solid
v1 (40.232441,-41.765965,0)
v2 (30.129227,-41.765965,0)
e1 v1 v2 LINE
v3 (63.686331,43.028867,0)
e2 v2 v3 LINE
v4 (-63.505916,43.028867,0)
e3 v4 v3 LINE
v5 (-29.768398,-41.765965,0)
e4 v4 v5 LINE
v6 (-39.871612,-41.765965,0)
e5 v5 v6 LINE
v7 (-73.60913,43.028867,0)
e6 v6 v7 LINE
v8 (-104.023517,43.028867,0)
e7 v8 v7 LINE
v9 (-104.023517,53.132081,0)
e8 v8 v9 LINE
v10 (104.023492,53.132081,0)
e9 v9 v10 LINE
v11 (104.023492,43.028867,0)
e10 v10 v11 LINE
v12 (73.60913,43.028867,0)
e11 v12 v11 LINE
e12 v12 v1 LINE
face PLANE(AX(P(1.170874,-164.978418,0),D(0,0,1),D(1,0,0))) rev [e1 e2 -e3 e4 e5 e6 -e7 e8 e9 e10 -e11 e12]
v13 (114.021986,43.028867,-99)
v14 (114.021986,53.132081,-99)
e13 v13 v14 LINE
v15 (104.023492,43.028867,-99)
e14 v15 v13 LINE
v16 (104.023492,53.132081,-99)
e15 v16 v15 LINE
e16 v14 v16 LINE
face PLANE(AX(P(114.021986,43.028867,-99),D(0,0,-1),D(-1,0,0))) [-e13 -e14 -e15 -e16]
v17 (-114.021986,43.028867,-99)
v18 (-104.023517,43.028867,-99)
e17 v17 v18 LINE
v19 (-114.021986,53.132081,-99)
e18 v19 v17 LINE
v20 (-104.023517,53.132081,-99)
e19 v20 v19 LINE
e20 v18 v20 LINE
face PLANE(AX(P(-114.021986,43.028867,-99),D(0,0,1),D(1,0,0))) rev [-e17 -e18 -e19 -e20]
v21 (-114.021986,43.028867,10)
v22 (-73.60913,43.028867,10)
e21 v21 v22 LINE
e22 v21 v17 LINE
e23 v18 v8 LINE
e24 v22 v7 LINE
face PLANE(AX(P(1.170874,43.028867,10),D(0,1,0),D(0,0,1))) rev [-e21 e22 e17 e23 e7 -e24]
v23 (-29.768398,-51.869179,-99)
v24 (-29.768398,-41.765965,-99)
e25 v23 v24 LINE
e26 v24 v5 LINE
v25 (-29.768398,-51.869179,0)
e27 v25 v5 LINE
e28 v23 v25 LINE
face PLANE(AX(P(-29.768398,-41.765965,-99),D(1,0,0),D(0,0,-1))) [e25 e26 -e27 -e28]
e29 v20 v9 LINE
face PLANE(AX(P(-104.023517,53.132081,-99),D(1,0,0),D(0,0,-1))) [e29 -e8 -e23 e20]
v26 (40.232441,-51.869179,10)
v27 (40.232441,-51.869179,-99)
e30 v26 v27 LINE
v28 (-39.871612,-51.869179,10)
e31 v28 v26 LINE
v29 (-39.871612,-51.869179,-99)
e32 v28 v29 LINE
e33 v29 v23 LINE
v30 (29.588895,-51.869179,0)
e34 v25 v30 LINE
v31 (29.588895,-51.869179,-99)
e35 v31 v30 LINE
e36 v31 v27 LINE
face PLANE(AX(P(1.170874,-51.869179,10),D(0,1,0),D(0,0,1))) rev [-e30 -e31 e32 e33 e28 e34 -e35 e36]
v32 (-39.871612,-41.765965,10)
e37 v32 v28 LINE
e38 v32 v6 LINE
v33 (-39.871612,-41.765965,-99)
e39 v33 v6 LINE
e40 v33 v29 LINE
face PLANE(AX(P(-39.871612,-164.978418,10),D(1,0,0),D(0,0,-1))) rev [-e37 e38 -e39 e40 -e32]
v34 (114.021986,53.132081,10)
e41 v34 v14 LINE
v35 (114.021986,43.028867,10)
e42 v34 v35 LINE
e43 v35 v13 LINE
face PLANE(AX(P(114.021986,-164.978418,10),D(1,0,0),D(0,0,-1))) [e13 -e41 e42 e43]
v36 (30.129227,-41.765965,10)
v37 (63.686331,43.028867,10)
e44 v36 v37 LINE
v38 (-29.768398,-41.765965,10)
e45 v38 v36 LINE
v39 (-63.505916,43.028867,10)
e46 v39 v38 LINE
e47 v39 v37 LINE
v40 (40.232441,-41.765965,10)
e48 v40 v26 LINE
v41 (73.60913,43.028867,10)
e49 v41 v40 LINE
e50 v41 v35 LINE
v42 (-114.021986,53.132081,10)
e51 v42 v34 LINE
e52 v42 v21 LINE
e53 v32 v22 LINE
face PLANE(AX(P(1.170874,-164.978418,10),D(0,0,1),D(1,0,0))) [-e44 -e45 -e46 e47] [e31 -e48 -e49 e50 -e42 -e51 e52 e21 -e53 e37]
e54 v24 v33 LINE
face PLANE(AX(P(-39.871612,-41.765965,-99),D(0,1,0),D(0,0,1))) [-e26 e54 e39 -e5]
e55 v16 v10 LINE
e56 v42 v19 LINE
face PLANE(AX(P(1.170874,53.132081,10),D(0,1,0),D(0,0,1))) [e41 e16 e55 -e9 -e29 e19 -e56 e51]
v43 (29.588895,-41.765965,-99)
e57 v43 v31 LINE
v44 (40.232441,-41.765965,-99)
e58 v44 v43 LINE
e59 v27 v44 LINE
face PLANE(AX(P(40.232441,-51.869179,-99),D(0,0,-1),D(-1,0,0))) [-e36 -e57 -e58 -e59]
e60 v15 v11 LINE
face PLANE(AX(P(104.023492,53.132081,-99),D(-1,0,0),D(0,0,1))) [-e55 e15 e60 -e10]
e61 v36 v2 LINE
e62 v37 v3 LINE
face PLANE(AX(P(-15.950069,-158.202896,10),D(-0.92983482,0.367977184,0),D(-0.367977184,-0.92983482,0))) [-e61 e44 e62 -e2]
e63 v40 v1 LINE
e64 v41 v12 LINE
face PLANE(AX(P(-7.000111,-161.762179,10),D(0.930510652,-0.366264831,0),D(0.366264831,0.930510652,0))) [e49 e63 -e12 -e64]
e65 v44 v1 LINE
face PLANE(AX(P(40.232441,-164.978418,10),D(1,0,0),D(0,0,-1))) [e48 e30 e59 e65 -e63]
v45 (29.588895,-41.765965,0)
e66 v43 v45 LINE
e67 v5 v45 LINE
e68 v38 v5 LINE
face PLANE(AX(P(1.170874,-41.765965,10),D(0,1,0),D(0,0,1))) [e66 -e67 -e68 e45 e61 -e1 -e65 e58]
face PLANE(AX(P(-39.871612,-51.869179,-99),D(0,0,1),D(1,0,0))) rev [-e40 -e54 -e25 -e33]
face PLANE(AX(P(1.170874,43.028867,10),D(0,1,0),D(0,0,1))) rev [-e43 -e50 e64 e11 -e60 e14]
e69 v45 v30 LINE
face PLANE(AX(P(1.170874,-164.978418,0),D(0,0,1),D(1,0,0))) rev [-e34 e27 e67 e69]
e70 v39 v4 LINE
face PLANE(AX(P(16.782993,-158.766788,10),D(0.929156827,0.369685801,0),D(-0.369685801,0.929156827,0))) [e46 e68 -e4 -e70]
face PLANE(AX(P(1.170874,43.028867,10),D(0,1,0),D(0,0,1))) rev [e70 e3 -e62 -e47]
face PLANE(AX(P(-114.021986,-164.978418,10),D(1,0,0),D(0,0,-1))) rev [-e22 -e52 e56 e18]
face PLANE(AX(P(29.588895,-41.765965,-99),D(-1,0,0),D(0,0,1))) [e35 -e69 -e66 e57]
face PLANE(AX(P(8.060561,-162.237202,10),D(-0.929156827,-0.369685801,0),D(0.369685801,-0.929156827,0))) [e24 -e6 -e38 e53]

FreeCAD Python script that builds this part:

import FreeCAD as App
import Part
import Sketcher

V = App.Vector
Q = App.Units.Quantity

doc = App.newDocument("Part")
body = doc.addObject("PartDesign::Body", "Body")

# Sketch on XY plane
sketch1 = body.newObject("Sketcher::SketchObject", "Sketch")
sketch1.AttachmentSupport = (doc.getObject("XY_Plane"), [""])
sketch1.MapMode = "FlatFace"
sketch1.addGeometry(Part.LineSegment(V(114, 43, 0), V(114, 53, 0)), False)
sketch1.addGeometry(Part.LineSegment(V(114, 53, 0), V(-114, 53, 0)), False)
sketch1.addGeometry(Part.LineSegment(V(-114, 53, 0), V(-114, 43, 0)), False)
sketch1.addGeometry(Part.LineSegment(V(-114, 43, 0), V(114, 43, 0)), False)
sketch1.addConstraint(Sketcher.Constraint("Coincident", 0, 2, 1, 1))
sketch1.addConstraint(Sketcher.Constraint("Coincident", 1, 2, 2, 1))
sketch1.addConstraint(Sketcher.Constraint("Coincident", 2, 2, 3, 1))
sketch1.addConstraint(Sketcher.Constraint("Coincident", 3, 2, 0, 1))
sketch1.addConstraint(Sketcher.Constraint("Vertical", 0))
sketch1.addConstraint(Sketcher.Constraint("Horizontal", 1))
sketch1.addConstraint(Sketcher.Constraint("Vertical", 2))
sketch1.addConstraint(Sketcher.Constraint("Horizontal", 3))
sketch1.addConstraint(Sketcher.Constraint("DistanceX", 1, 2, 1, 1, Q("228.043972 mm")))
sketch1.addConstraint(Sketcher.Constraint("DistanceY", 0, 1, 0, 2, Q("10.103214 mm")))
sketch1.addConstraint(Sketcher.Constraint("DistanceY", -1, 1, 0, 2, Q("53.132081 mm")))
sketch1.addConstraint(Sketcher.Constraint("DistanceX", -1, 1, 0, 2, Q("114.021986 mm")))
pad1 = body.newObject("PartDesign::Pad", "Pad")
pad1.Profile = sketch1
pad1.Length = 10
body2 = doc.addObject("PartDesign::Body", "Body001")

# Sketch on XY plane
sketch2 = body2.newObject("Sketcher::SketchObject", "Sketch001")
sketch2.AttachmentSupport = (doc.getObject("XY_Plane001"), [""])
sketch2.MapMode = "FlatFace"
sketch2.addGeometry(Part.LineSegment(V(40, -52, 0), V(40, -42, 0)), False)
sketch2.addGeometry(Part.LineSegment(V(40, -42, 0), V(-40, -42, 0)), False)
sketch2.addGeometry(Part.LineSegment(V(-40, -42, 0), V(-40, -52, 0)), False)
sketch2.addGeometry(Part.LineSegment(V(-40, -52, 0), V(40, -52, 0)), False)
sketch2.addConstraint(Sketcher.Constraint("Coincident", 0, 2, 1, 1))
sketch2.addConstraint(Sketcher.Constraint("Coincident", 1, 2, 2, 1))
sketch2.addConstraint(Sketcher.Constraint("Coincident", 2, 2, 3, 1))
sketch2.addConstraint(Sketcher.Constraint("Coincident", 3, 2, 0, 1))
sketch2.addConstraint(Sketcher.Constraint("Vertical", 0))
sketch2.addConstraint(Sketcher.Constraint("Horizontal", 1))
sketch2.addConstraint(Sketcher.Constraint("Vertical", 2))
sketch2.addConstraint(Sketcher.Constraint("Horizontal", 3))
sketch2.addConstraint(Sketcher.Constraint("DistanceX", 1, 2, 1, 1, Q("80.104054 mm")))
sketch2.addConstraint(Sketcher.Constraint("DistanceY", 0, 1, 0, 2, Q("10.103214 mm")))
sketch2.addConstraint(Sketcher.Constraint("DistanceX", -1, 1, 0, 2, Q("40.232441 mm")))
sketch2.addConstraint(Sketcher.Constraint("DistanceY", 2, 2, -1, 1, Q("51.869179 mm")))
pad2 = body2.newObject("PartDesign::Pad", "Pad001")
pad2.Profile = sketch2
pad2.Length = 10
body.AllowCompound = True
doc.recompute()

boolean = body.newObject("PartDesign::Boolean", "Boolean")
boolean.Type = "Fuse"
boolean.addObjects([body2])

# Sketch on XY plane
sketch3 = body.newObject("Sketcher::SketchObject", "Sketch002")
sketch3.AttachmentSupport = (doc.getObject("XY_Plane"), [""])
sketch3.MapMode = "FlatFace"
sketch3.addGeometry(Part.LineSegment(V(40, -42, 0), V(74, 43, 0)), False)
sketch3.addGeometry(Part.LineSegment(V(74, 43, 0), V(64, 43, 0)), False)
sketch3.addGeometry(Part.LineSegment(V(64, 43, 0), V(30, -42, 0)), False)
sketch3.addGeometry(Part.LineSegment(V(30, -42, 0), V(40, -42, 0)), False)
sketch3.addGeometry(Part.LineSegment(V(-30, -42, 0), V(-64, 43, 0)), False)
sketch3.addGeometry(Part.LineSegment(V(-64, 43, 0), V(-74, 43, 0)), False)
sketch3.addGeometry(Part.LineSegment(V(-74, 43, 0), V(-40, -42, 0)), False)
sketch3.addGeometry(Part.LineSegment(V(-40, -42, 0), V(-30, -42, 0)), False)
sketch3.addConstraint(Sketcher.Constraint("Coincident", 0, 2, 1, 1))
sketch3.addConstraint(Sketcher.Constraint("Coincident", 1, 2, 2, 1))
sketch3.addConstraint(Sketcher.Constraint("Coincident", 2, 2, 3, 1))
sketch3.addConstraint(Sketcher.Constraint("Coincident", 3, 2, 0, 1))
sketch3.addConstraint(Sketcher.Constraint("Coincident", 4, 2, 5, 1))
sketch3.addConstraint(Sketcher.Constraint("Coincident", 5, 2, 6, 1))
sketch3.addConstraint(Sketcher.Constraint("Coincident", 6, 2, 7, 1))
sketch3.addConstraint(Sketcher.Constraint("Coincident", 7, 2, 4, 1))
sketch3.addConstraint(Sketcher.Constraint("Horizontal", 1))
sketch3.addConstraint(Sketcher.Constraint("Horizontal", 3))
sketch3.addConstraint(Sketcher.Constraint("Horizontal", 5))
sketch3.addConstraint(Sketcher.Constraint("Horizontal", 7))
sketch3.addConstraint(Sketcher.Constraint("Symmetric", 0, 2, 5, 2, -2))
sketch3.addConstraint(Sketcher.Constraint("Parallel", 4, 6))
sketch3.addConstraint(Sketcher.Constraint("Horizontal", 3, 2, 6, 2))
sketch3.addConstraint(Sketcher.Constraint("Equal", 3, 5))
sketch3.addConstraint(Sketcher.Constraint("DistanceX", 1, 2, 1, 1, Q("9.922799 mm")))
sketch3.addConstraint(Sketcher.Constraint("Distance", 0, Q("91.127201 mm")))
sketch3.addConstraint(Sketcher.Constraint("DistanceX", 7, 2, -1, 1, Q("29.768398 mm")))
sketch3.addConstraint(Sketcher.Constraint("DistanceX", 3, 1, 3, 2, Q("10.103214 mm")))
sketch3.addConstraint(Sketcher.Constraint("DistanceX", -1, 1, 0, 2, Q("73.60913 mm")))
sketch3.addConstraint(Sketcher.Constraint("DistanceX", -1, 1, 3, 2, Q("40.232441 mm")))
sketch3.addConstraint(Sketcher.Constraint("DistanceY", -1, 1, 0, 2, Q("43.028867 mm")))
pad3 = body.newObject("PartDesign::Pad", "Pad002")
pad3.Profile = sketch3
pad3.Length = 10

# Sketch on XY plane
sketch4 = body.newObject("Sketcher::SketchObject", "Sketch003")
sketch4.AttachmentSupport = (doc.getObject("XY_Plane"), [""])
sketch4.MapMode = "FlatFace"
sketch4.addGeometry(Part.LineSegment(V(-114, 53, 0), V(-114, 43, 0)), False)
sketch4.addGeometry(Part.LineSegment(V(-114, 43, 0), V(-104, 43, 0)), False)
sketch4.addGeometry(Part.LineSegment(V(-104, 43, 0), V(-104, 53, 0)), False)
sketch4.addGeometry(Part.LineSegment(V(-104, 53, 0), V(-114, 53, 0)), False)
sketch4.addGeometry(Part.LineSegment(V(-40, -42, 0), V(-40, -52, 0)), False)
sketch4.addGeometry(Part.LineSegment(V(-40, -52, 0), V(-30, -52, 0)), False)
sketch4.addGeometry(Part.LineSegment(V(-30, -52, 0), V(-30, -42, 0)), False)
sketch4.addGeometry(Part.LineSegment(V(-30, -42, 0), V(-40, -42, 0)), False)
sketch4.addGeometry(Part.LineSegment(V(30, -42, 0), V(30, -52, 0)), False)
sketch4.addGeometry(Part.LineSegment(V(30, -52, 0), V(40, -52, 0)), False)
sketch4.addGeometry(Part.LineSegment(V(40, -52, 0), V(40, -42, 0)), False)
sketch4.addGeometry(Part.LineSegment(V(40, -42, 0), V(30, -42, 0)), False)
sketch4.addGeometry(Part.LineSegment(V(104, 53, 0), V(104, 43, 0)), False)
sketch4.addGeometry(Part.LineSegment(V(104, 43, 0), V(114, 43, 0)), False)
sketch4.addGeometry(Part.LineSegment(V(114, 43, 0), V(114, 53, 0)), False)
sketch4.addGeometry(Part.LineSegment(V(114, 53, 0), V(104, 53, 0)), False)
sketch4.addConstraint(Sketcher.Constraint("Coincident", 0, 2, 1, 1))
sketch4.addConstraint(Sketcher.Constraint("Coincident", 1, 2, 2, 1))
sketch4.addConstraint(Sketcher.Constraint("Coincident", 2, 2, 3, 1))
sketch4.addConstraint(Sketcher.Constraint("Coincident", 3, 2, 0, 1))
sketch4.addConstraint(Sketcher.Constraint("Coincident", 4, 2, 5, 1))
sketch4.addConstraint(Sketcher.Constraint("Coincident", 5, 2, 6, 1))
sketch4.addConstraint(Sketcher.Constraint("Coincident", 6, 2, 7, 1))
sketch4.addConstraint(Sketcher.Constraint("Coincident", 7, 2, 4, 1))
sketch4.addConstraint(Sketcher.Constraint("Coincident", 8, 2, 9, 1))
sketch4.addConstraint(Sketcher.Constraint("Coincident", 9, 2, 10, 1))
sketch4.addConstraint(Sketcher.Constraint("Coincident", 10, 2, 11, 1))
sketch4.addConstraint(Sketcher.Constraint("Coincident", 11, 2, 8, 1))
sketch4.addConstraint(Sketcher.Constraint("Coincident", 12, 2, 13, 1))
sketch4.addConstraint(Sketcher.Constraint("Coincident", 13, 2, 14, 1))
sketch4.addConstraint(Sketcher.Constraint("Coincident", 14, 2, 15, 1))
sketch4.addConstraint(Sketcher.Constraint("Coincident", 15, 2, 12, 1))
sketch4.addConstraint(Sketcher.Constraint("Vertical", 0))
sketch4.addConstraint(Sketcher.Constraint("Horizontal", 1))
sketch4.addConstraint(Sketcher.Constraint("Vertical", 2))
sketch4.addConstraint(Sketcher.Constraint("Horizontal", 3))
sketch4.addConstraint(Sketcher.Constraint("Vertical", 4))
sketch4.addConstraint(Sketcher.Constraint("Horizontal", 5))
sketch4.addConstraint(Sketcher.Constraint("Vertical", 6))
sketch4.addConstraint(Sketcher.Constraint("Horizontal", 7))
sketch4.addConstraint(Sketcher.Constraint("Vertical", 8))
sketch4.addConstraint(Sketcher.Constraint("Horizontal", 9))
sketch4.addConstraint(Sketcher.Constraint("Vertical", 10))
sketch4.addConstraint(Sketcher.Constraint("Horizontal", 11))
sketch4.addConstraint(Sketcher.Constraint("Vertical", 12))
sketch4.addConstraint(Sketcher.Constraint("Horizontal", 13))
sketch4.addConstraint(Sketcher.Constraint("Vertical", 14))
sketch4.addConstraint(Sketcher.Constraint("Horizontal", 15))
sketch4.addConstraint(Sketcher.Constraint("Symmetric", 0, 2, 13, 2, -2))
sketch4.addConstraint(Sketcher.Constraint("Horizontal", 5, 2, 8, 2))
sketch4.addConstraint(Sketcher.Constraint("Horizontal", 7, 2, 10, 2))
sketch4.addConstraint(Sketcher.Constraint("Horizontal", 3, 2, 14, 2))
sketch4.addConstraint(Sketcher.Constraint("Equal", 7, 0))
sketch4.addConstraint(Sketcher.Constraint("Equal", 2, 4))
sketch4.addConstraint(Sketcher.Constraint("DistanceX", 1, 1, 1, 2, Q("9.998469 mm")))
sketch4.addConstraint(Sketcher.Constraint("DistanceX", 5, 2, -1, 1, Q("29.768398 mm")))
sketch4.addConstraint(Sketcher.Constraint("DistanceX", 5, 1, 5, 2, Q("10.103214 mm")))
sketch4.addConstraint(Sketcher.Constraint("DistanceX", 9, 1, 9, 2, Q("10.643546 mm")))
sketch4.addConstraint(Sketcher.Constraint("DistanceX", 13, 1, 13, 2, Q("9.998494 mm")))
sketch4.addConstraint(Sketcher.Constraint("DistanceY", -1, 1, 2, 2, Q("53.132081 mm")))
sketch4.addConstraint(Sketcher.Constraint("DistanceY", 4, 2, -1, 1, Q("51.869179 mm")))
sketch4.addConstraint(Sketcher.Constraint("DistanceX", -1, 1, 9, 2, Q("40.232441 mm")))
sketch4.addConstraint(Sketcher.Constraint("DistanceX", -1, 1, 12, 2, Q("104.023492 mm")))
pad4 = body.newObject("PartDesign::Pad", "Pad003")
pad4.Profile = sketch4
pad4.Type = "TwoLengths"
pad4.Length = 10
pad4.Length2 = 99

doc.recompute()
